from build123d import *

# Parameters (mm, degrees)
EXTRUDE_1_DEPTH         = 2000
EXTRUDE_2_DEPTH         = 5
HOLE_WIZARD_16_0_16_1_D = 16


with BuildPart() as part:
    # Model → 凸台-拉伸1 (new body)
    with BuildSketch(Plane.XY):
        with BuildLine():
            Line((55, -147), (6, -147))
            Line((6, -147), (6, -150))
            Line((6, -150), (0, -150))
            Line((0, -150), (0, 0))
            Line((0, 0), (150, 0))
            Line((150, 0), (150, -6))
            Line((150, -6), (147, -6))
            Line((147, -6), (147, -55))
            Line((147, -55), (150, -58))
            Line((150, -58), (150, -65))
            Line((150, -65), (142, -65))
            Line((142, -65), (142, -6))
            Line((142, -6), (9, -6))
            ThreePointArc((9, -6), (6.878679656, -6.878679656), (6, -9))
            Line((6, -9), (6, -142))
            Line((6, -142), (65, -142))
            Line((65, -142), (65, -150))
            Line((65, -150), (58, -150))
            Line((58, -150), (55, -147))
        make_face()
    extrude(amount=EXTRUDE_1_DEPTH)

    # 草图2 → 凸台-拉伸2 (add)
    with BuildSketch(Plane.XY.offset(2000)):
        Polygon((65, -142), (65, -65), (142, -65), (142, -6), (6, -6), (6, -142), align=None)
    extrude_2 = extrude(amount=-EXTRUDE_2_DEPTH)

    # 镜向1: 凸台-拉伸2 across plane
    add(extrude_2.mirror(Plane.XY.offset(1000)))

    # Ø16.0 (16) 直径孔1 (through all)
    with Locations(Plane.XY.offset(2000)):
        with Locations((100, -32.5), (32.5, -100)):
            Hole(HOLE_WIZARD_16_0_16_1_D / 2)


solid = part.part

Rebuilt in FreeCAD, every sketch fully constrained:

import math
import FreeCAD as App
import Part
import Sketcher


def add_polygon(sketch, points):
    """Adds a closed chain of lines whose ends are joined by coincident constraints."""
    first, n = sketch.GeometryCount, len(points)
    for a, b in zip(points, points[1:] + points[:1]):
        sketch.addGeometry(Part.LineSegment(App.Vector(*a, 0), App.Vector(*b, 0)), False)
    for i in range(n):
        sketch.addConstraint(Sketcher.Constraint("Coincident", first + i, 2, first + (i + 1) % n, 1))

doc = App.newDocument("Part")
body = doc.addObject("PartDesign::Body", "Body")

# Sketch on XY plane
sketch1 = body.newObject("Sketcher::SketchObject", "Sketch")
sketch1.AttachmentSupport = (doc.getObject("XY_Plane"), [""])
sketch1.MapMode = "FlatFace"
sketch1.addGeometry([
    Part.LineSegment(App.Vector(6, -147, 0), App.Vector(55, -147, 0)),  # 0
    Part.LineSegment(App.Vector(55, -147, 0), App.Vector(58, -150, 0)),  # 1
    Part.LineSegment(App.Vector(58, -150, 0), App.Vector(65, -150, 0)),  # 2
    Part.LineSegment(App.Vector(65, -150, 0), App.Vector(65, -142, 0)),  # 3
    Part.LineSegment(App.Vector(65, -142, 0), App.Vector(6, -142, 0)),  # 4
    Part.LineSegment(App.Vector(6, -142, 0), App.Vector(6, -9, 0)),  # 5
    Part.ArcOfCircle(Part.Circle(App.Vector(9, -9, 0), App.Vector(0, 0, 1), 3), math.radians(90), math.radians(180)),  # 6
    Part.LineSegment(App.Vector(9, -6, 0), App.Vector(142, -6, 0)),  # 7
    Part.LineSegment(App.Vector(142, -6, 0), App.Vector(142, -65, 0)),  # 8
    Part.LineSegment(App.Vector(142, -65, 0), App.Vector(150, -65, 0)),  # 9
    Part.LineSegment(App.Vector(150, -65, 0), App.Vector(150, -58, 0)),  # 10
    Part.LineSegment(App.Vector(150, -58, 0), App.Vector(147, -55, 0)),  # 11
    Part.LineSegment(App.Vector(147, -55, 0), App.Vector(147, -6, 0)),  # 12
    Part.LineSegment(App.Vector(147, -6, 0), App.Vector(150, -6, 0)),  # 13
    Part.LineSegment(App.Vector(150, -6, 0), App.Vector(150, 0, 0)),  # 14
    Part.LineSegment(App.Vector(150, 0, 0), App.Vector(0, 0, 0)),  # 15
    Part.LineSegment(App.Vector(0, 0, 0), App.Vector(0, -150, 0)),  # 16
    Part.LineSegment(App.Vector(0, -150, 0), App.Vector(6, -150, 0)),  # 17
    Part.LineSegment(App.Vector(6, -150, 0), App.Vector(6, -147, 0)),  # 18
], False)
sketch1.addConstraint([
    Sketcher.Constraint("Coincident", 0, 2, 1, 1),
    Sketcher.Constraint("Coincident", 1, 2, 2, 1),
    Sketcher.Constraint("Coincident", 2, 2, 3, 1),
    Sketcher.Constraint("Coincident", 3, 2, 4, 1),
    Sketcher.Constraint("Coincident", 4, 2, 5, 1),
    Sketcher.Constraint("Tangent", 5, 2, 6, 2),
    Sketcher.Constraint("Tangent", 6, 1, 7, 1),
    Sketcher.Constraint("Coincident", 7, 2, 8, 1),
    Sketcher.Constraint("Coincident", 8, 2, 9, 1),
    Sketcher.Constraint("Coincident", 9, 2, 10, 1),
    Sketcher.Constraint("Coincident", 10, 2, 11, 1),
    Sketcher.Constraint("Coincident", 11, 2, 12, 1),
    Sketcher.Constraint("Coincident", 12, 2, 13, 1),
    Sketcher.Constraint("Coincident", 13, 2, 14, 1),
    Sketcher.Constraint("Coincident", 14, 2, 15, 1),
    Sketcher.Constraint("Coincident", 15, 2, 16, 1),
    Sketcher.Constraint("Coincident", 16, 2, 17, 1),
    Sketcher.Constraint("Coincident", 17, 2, 18, 1),
    Sketcher.Constraint("Coincident", 18, 2, 0, 1),
    Sketcher.Constraint("Horizontal", 0),
    Sketcher.Constraint("Horizontal", 2),
    Sketcher.Constraint("Vertical", 3),
    Sketcher.Constraint("Horizontal", 4),
    Sketcher.Constraint("Vertical", 5),
    Sketcher.Constraint("Horizontal", 7),
    Sketcher.Constraint("Vertical", 8),
    Sketcher.Constraint("Horizontal", 9),
    Sketcher.Constraint("Vertical", 10),
    Sketcher.Constraint("Vertical", 12),
    Sketcher.Constraint("Horizontal", 13),
    Sketcher.Constraint("Vertical", 14),
    Sketcher.Constraint("Horizontal", 15),
    Sketcher.Constraint("Vertical", 16),
    Sketcher.Constraint("Horizontal", 17),
    Sketcher.Constraint("Vertical", 18),
    Sketcher.Constraint("Coincident", 15, 2, -1, 1),
    Sketcher.Constraint("Parallel", 1, 11),
    Sketcher.Constraint("Horizontal", 7, 2, 12, 2),
    Sketcher.Constraint("Horizontal", 2, 2, 16, 2),
    Sketcher.Constraint("Vertical", 10, 2, 13, 2),
    Sketcher.Constraint("Vertical", 5, 2, 17, 2),
    Sketcher.Constraint("Equal", 9, 3),
    Sketcher.Constraint("Equal", 7, 5),
    Sketcher.Constraint("Equal", 4, 8),
    Sketcher.Constraint("Equal", 2, 10),
    Sketcher.Constraint("Equal", 0, 12),
    Sketcher.Constraint("Equal", 17, 14),
    Sketcher.Constraint("Equal", 13, 18),
    Sketcher.Constraint("Radius", 6, 3.0),
    Sketcher.Constraint("DistanceX", 0, 1, 0, 2, 49.0),
    Sketcher.Constraint("DistanceX", 2, 1, 2, 2, 7.0),
    Sketcher.Constraint("DistanceX", 4, 2, 4, 1, 59.0),
    Sketcher.Constraint("DistanceX", 7, 1, 7, 2, 133.0),
    Sketcher.Constraint("DistanceX", 9, 1, 9, 2, 8.0),
    Sketcher.Constraint("DistanceX", 15, 2, 15, 1, 150.0),
])
pad1 = body.newObject("PartDesign::Pad", "Pad")
pad1.Profile = sketch1
pad1.Length = 2000

# Sketch on XY plane
sketch2 = body.newObject("Sketcher::SketchObject", "Sketch001")
sketch2.AttachmentSupport = (doc.getObject("XY_Plane"), [""])
sketch2.MapMode = "FlatFace"
sketch2.AttachmentOffset = App.Placement(App.Vector(0, 0, 2000), App.Rotation())
add_polygon(sketch2, [(65, -142), (65, -65), (142, -65), (142, -6), (6, -6), (6, -142)])  # lines 0-5
sketch2.addConstraint([
    Sketcher.Constraint("Vertical", 0),
    Sketcher.Constraint("Horizontal", 1),
    Sketcher.Constraint("Vertical", 2),
    Sketcher.Constraint("Horizontal", 3),
    Sketcher.Constraint("Vertical", 4),
    Sketcher.Constraint("Horizontal", 5),
    Sketcher.Constraint("Equal", 1, 0),
    Sketcher.Constraint("Equal", 5, 2),
    Sketcher.Constraint("DistanceX", 1, 1, 1, 2, 77.0),
    Sketcher.Constraint("DistanceX", 3, 2, 3, 1, 136.0),
    Sketcher.Constraint("DistanceX", -1, 1, 0, 2, 65.0),
    Sketcher.Constraint("DistanceY", 0, 2, -1, 1, 65.0),
])
pad2 = body.newObject("PartDesign::Pad", "Pad001")
pad2.Profile = sketch2
pad2.Length = 5
pad2.Reversed = True
doc.recompute()

datumplane = body.newObject("PartDesign::Plane", "DatumPlane")
datumplane.AttachmentSupport = (doc.getObject("XY_Plane"), [""])
datumplane.MapMode = "FlatFace"
datumplane.AttachmentOffset = App.Placement(App.Vector(0, 0, 1000), App.Rotation())
mirrored = body.newObject("PartDesign::Mirrored", "Mirrored")
mirrored.Originals = [pad2]
mirrored.MirrorPlane = (datumplane, [""])
body.Tip = mirrored

# Sketch on XY plane
sketch3 = body.newObject("Sketcher::SketchObject", "Sketch002")
sketch3.AttachmentSupport = (doc.getObject("XY_Plane"), [""])
sketch3.MapMode = "FlatFace"
sketch3.AttachmentOffset = App.Placement(App.Vector(0, 0, 2000), App.Rotation())
sketch3.addGeometry([
    Part.Circle(App.Vector(100, -32, 0), App.Vector(0, 0, 1), 8),
    Part.Circle(App.Vector(32, -100, 0), App.Vector(0, 0, 1), 8),
], False)
sketch3.addConstraint([
    Sketcher.Constraint("Equal", 0, 1),
    Sketcher.Constraint("Diameter", 0, 16.0),
    Sketcher.Constraint("DistanceX", -1, 1, 0, 3, 100.0),
    Sketcher.Constraint("DistanceY", 1, 3, -1, 1, 100.0),
    Sketcher.Constraint("DistanceY", 0, 3, -1, 1, 32.5),
    Sketcher.Constraint("DistanceX", -1, 1, 1, 3, 32.5),
])
doc.recompute()
hole = body.newObject("PartDesign::Hole", "Hole")
hole.Profile = sketch3
hole.ThreadType = "None"
hole.Diameter = 16
hole.DepthType = "ThroughAll"

doc.recompute()
